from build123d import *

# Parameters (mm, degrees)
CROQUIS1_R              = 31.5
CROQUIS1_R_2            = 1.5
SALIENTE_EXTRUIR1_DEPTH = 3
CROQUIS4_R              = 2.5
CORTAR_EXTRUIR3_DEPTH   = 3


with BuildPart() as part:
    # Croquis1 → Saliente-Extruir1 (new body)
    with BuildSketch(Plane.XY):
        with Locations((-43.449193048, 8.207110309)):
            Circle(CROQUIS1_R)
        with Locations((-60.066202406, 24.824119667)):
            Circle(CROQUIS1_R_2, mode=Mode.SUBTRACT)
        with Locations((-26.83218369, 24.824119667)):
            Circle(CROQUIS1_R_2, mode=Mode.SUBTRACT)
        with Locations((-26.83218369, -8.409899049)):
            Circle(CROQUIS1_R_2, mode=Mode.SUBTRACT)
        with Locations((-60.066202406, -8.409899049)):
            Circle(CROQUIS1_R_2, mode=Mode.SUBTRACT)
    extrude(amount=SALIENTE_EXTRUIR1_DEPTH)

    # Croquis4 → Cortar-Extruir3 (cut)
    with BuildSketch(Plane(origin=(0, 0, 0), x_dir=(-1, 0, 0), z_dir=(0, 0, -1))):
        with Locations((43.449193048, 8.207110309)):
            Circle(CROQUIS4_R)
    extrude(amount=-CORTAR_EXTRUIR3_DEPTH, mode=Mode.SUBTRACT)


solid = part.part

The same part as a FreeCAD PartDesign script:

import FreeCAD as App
import Part
import Sketcher
from FreeCAD import Vector

doc = App.newDocument("Part")
body = doc.addObject("PartDesign::Body", "Body")

# Sketch on XY plane
sketch1 = doc.addObject("Sketcher::SketchObject", "Sketch")
body.addObject(sketch1)
sketch1.AttachmentSupport = (doc.XY_Plane, [""])
sketch1.MapMode = "FlatFace"
sketch1.addGeometry(Part.Circle(Vector(-43.4, 8.2, 0), Vector(0, 0, 1), 31.5), False)
sketch1.addGeometry(Part.Circle(Vector(-60.1, -8.4, 0), Vector(0, 0, 1), 1.5), False)
sketch1.addGeometry(Part.Circle(Vector(-26.8, -8.4, 0), Vector(0, 0, 1), 1.5), False)
sketch1.addGeometry(Part.Circle(Vector(-60.1, 24.8, 0), Vector(0, 0, 1), 1.5), False)
sketch1.addGeometry(Part.Circle(Vector(-26.8, 24.8, 0), Vector(0, 0, 1), 1.5), False)
sketch1.addConstraint(Sketcher.Constraint("Equal", 1, 2))
sketch1.addConstraint(Sketcher.Constraint("Equal", 2, 3))
sketch1.addConstraint(Sketcher.Constraint("Equal", 3, 4))
sketch1.addConstraint(Sketcher.Constraint("Horizontal", 1, 3, 2, 3))
sketch1.addConstraint(Sketcher.Constraint("Horizontal", 3, 3, 4, 3))
sketch1.addConstraint(Sketcher.Constraint("Vertical", 1, 3, 3, 3))
sketch1.addConstraint(Sketcher.Constraint("Vertical", 2, 3, 4, 3))
sketch1.addConstraint(Sketcher.Constraint("Diameter", 0, 63.0))
sketch1.addConstraint(Sketcher.Constraint("Diameter", 1, 3.0))
sketch1.addConstraint(Sketcher.Constraint("DistanceY", 1, 3, -1, 1, 8.409899))
sketch1.addConstraint(Sketcher.Constraint("DistanceY", -1, 1, 0, 3, 8.20711))
sketch1.addConstraint(Sketcher.Constraint("DistanceY", -1, 1, 3, 3, 24.82412))
sketch1.addConstraint(Sketcher.Constraint("DistanceX", 1, 3, 0, 3, 16.617009))
sketch1.addConstraint(Sketcher.Constraint("DistanceX", 0, 3, 2, 3, 16.617009))
sketch1.addConstraint(Sketcher.Constraint("DistanceX", 0, 3, -1, 1, 43.449193))
pad1 = doc.addObject("PartDesign::Pad", "Pad")
body.addObject(pad1)
pad1.Profile = sketch1
pad1.Length = 3

# Sketch on XY plane
sketch2 = doc.addObject("Sketcher::SketchObject", "Sketch001")
body.addObject(sketch2)
sketch2.AttachmentSupport = (doc.XY_Plane, [""])
sketch2.MapMode = "FlatFace"
sketch2.addGeometry(Part.Circle(Vector(-43.4, 8.2, 0), Vector(0, 0, 1), 2.5), False)
sketch2.addConstraint(Sketcher.Constraint("Diameter", 0, 5.0))
sketch2.addConstraint(Sketcher.Constraint("DistanceY", -1, 1, 0, 3, 8.20711))
sketch2.addConstraint(Sketcher.Constraint("DistanceX", 0, 3, -1, 1, 43.449193))
pocket1 = doc.addObject("PartDesign::Pocket", "Pocket")
body.addObject(pocket1)
pocket1.Profile = sketch2
pocket1.Length = 3
pocket1.Reversed = True

doc.recompute()
